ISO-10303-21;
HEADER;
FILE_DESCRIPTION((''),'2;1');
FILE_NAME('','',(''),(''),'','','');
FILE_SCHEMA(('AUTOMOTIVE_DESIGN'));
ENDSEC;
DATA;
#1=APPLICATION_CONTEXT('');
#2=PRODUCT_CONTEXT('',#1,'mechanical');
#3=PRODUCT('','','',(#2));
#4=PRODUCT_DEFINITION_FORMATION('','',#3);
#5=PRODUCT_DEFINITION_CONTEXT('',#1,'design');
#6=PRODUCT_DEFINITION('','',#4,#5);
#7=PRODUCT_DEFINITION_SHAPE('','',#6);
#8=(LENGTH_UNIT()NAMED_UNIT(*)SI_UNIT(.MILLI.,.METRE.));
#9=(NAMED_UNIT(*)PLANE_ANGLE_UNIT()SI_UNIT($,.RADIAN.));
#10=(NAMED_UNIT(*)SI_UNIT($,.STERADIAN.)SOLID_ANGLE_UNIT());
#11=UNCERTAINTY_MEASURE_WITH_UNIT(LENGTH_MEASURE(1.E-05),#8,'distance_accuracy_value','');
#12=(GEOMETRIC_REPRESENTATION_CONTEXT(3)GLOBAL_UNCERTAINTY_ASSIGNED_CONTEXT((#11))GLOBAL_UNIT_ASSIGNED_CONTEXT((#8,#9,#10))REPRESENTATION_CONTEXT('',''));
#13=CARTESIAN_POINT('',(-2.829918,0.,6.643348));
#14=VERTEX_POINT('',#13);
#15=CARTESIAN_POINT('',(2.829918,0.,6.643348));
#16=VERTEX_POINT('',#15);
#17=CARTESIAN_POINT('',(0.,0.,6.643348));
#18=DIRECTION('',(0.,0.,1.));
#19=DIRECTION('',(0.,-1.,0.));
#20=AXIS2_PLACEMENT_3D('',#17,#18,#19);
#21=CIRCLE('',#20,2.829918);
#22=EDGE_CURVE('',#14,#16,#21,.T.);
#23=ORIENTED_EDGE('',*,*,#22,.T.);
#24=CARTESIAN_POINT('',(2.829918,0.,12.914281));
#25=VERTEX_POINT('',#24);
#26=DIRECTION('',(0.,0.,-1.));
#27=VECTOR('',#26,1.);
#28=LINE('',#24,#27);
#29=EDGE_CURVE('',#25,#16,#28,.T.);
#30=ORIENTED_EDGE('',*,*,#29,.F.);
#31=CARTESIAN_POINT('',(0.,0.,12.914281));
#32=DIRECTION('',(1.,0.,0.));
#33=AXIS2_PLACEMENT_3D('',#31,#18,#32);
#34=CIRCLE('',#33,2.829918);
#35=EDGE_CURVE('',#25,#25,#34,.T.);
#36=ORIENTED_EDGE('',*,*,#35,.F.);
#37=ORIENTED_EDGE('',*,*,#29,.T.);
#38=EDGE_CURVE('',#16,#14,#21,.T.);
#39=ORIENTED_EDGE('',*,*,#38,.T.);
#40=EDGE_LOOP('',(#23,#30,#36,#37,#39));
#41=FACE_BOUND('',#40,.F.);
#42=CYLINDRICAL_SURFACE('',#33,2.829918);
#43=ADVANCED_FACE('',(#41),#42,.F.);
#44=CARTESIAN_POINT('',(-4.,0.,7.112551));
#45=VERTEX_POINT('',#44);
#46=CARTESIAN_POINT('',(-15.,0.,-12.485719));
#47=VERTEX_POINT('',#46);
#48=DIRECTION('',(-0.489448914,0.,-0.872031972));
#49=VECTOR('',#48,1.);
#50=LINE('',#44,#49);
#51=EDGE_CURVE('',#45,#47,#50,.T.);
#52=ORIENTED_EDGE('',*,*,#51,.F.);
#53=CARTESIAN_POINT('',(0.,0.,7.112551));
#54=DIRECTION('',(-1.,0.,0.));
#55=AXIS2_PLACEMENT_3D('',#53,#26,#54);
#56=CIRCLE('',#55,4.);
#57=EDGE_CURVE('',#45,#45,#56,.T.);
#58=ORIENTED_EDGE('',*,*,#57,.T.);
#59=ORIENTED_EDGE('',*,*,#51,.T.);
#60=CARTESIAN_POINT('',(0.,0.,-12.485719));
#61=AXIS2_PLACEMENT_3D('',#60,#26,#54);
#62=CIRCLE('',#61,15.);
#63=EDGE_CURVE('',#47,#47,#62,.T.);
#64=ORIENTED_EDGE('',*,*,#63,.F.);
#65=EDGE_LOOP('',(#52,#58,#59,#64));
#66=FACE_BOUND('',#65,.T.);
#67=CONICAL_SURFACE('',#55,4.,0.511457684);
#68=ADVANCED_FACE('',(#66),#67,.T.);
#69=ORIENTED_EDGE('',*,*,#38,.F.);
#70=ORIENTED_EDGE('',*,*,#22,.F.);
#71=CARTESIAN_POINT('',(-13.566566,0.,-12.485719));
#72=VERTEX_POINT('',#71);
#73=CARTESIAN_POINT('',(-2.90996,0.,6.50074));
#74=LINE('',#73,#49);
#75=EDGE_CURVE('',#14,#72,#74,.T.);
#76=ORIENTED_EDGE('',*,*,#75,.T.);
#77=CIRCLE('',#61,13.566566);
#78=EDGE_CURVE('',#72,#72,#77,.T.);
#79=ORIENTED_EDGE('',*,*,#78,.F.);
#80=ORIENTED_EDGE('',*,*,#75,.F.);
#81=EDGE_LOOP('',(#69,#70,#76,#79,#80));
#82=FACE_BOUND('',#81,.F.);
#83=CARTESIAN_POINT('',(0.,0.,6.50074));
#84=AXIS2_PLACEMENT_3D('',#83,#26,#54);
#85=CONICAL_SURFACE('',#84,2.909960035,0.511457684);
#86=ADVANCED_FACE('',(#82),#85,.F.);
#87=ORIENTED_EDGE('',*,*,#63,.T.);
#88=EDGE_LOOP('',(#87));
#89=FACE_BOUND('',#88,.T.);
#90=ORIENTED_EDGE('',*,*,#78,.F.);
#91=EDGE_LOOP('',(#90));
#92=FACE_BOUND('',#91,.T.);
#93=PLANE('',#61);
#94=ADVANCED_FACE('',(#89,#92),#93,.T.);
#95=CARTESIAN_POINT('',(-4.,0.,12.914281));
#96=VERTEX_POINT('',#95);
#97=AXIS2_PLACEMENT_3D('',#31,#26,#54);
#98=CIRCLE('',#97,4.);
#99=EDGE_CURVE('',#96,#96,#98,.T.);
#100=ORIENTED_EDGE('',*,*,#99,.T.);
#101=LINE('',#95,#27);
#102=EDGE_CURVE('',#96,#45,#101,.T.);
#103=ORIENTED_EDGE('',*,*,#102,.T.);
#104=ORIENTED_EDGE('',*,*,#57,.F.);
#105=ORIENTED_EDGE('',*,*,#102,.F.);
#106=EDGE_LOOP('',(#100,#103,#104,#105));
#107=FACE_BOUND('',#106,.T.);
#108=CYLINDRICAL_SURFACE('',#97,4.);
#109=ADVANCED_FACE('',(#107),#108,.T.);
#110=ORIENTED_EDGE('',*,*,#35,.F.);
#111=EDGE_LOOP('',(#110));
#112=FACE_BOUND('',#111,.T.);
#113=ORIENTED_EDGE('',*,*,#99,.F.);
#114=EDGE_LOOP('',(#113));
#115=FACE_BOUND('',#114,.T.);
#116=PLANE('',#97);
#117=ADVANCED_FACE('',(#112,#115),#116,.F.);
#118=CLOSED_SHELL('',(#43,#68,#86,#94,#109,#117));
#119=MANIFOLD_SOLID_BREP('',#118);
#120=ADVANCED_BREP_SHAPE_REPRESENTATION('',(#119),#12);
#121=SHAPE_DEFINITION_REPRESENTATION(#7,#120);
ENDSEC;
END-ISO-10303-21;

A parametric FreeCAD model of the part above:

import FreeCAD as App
import Part
import Sketcher
from FreeCAD import Vector


def faces_at(feature, points):
    """Names of the faces that lie closest to the given points."""
    faces = feature.Shape.Faces
    near = lambda p: min(range(len(faces)), key=lambda i: faces[i].distToShape(Part.Vertex(*p))[0])
    return sorted({f"Face{near(p) + 1}" for p in points})

doc = App.newDocument("Part")
body = doc.addObject("PartDesign::Body", "Body")

# Sketch on XZ plane
sketch1 = doc.addObject("Sketcher::SketchObject", "Sketch")
body.addObject(sketch1)
sketch1.AttachmentSupport = (doc.XZ_Plane, [""])
sketch1.MapMode = "FlatFace"
sketch1.addGeometry([
    Part.LineSegment(Vector(0, -12.5, 0), Vector(0, 12.9, 0)),  # 0
    Part.LineSegment(Vector(0, 12.9, 0), Vector(-4, 12.9, 0)),  # 1
    Part.LineSegment(Vector(-4, 12.9, 0), Vector(-4, 7.1, 0)),  # 2
    Part.LineSegment(Vector(-4, 7.1, 0), Vector(-15, -12.5, 0)),  # 3
    Part.LineSegment(Vector(-15, -12.5, 0), Vector(0, -12.5, 0)),  # 4
], False)
sketch1.addConstraint([
    Sketcher.Constraint("Coincident", 0, 2, 1, 1),
    Sketcher.Constraint("Coincident", 1, 2, 2, 1),
    Sketcher.Constraint("Coincident", 2, 2, 3, 1),
    Sketcher.Constraint("Coincident", 3, 2, 4, 1),
    Sketcher.Constraint("Coincident", 4, 2, 0, 1),
    Sketcher.Constraint("Vertical", 0),
    Sketcher.Constraint("Horizontal", 1),
    Sketcher.Constraint("Vertical", 2),
    Sketcher.Constraint("Horizontal", 4),
    Sketcher.Constraint("PointOnObject", 0, 2, -2),
    Sketcher.Constraint("DistanceX", 1, 2, 1, 1, 4.0),
    Sketcher.Constraint("DistanceX", 4, 1, 4, 2, 15.0),
    Sketcher.Constraint("DistanceY", 0, 1, 0, 2, 25.4),
    Sketcher.Constraint("DistanceY", 2, 2, 2, 1, 5.801731),
    Sketcher.Constraint("DistanceY", -1, 1, 0, 2, 12.914281),
])
revolution = doc.addObject("PartDesign::Revolution", "Revolution")
body.addObject(revolution)
revolution.Profile = sketch1
revolution.ReferenceAxis = (sketch1, ["V_Axis"])
revolution.Angle = 360
doc.recompute()

thickness = doc.addObject("PartDesign::Thickness", "Thickness")
body.addObject(thickness)
thickness.Base = (revolution, faces_at(revolution, [(0, 0, -12.486)]))
thickness.Value = 1.25
thickness.Reversed = True
thickness.Join = "Intersection"

# Sketch on XY plane
sketch2 = doc.addObject("Sketcher::SketchObject", "Sketch001")
body.addObject(sketch2)
sketch2.AttachmentSupport = (doc.XY_Plane, [""])
sketch2.MapMode = "FlatFace"
sketch2.AttachmentOffset = App.Placement(Vector(0, 0, 12.914281), App.Rotation())
sketch2.addGeometry(Part.Circle(Vector(0, 0, 0), Vector(0, 0, 1), 2.8), False)
sketch2.addConstraint([
    Sketcher.Constraint("Coincident", 0, 3, -1, 1),
    Sketcher.Constraint("Diameter", 0, 5.659835),
])
pocket1 = doc.addObject("PartDesign::Pocket", "Pocket")
body.addObject(pocket1)
pocket1.Profile = sketch2
pocket1.Length = 25

doc.recompute()
